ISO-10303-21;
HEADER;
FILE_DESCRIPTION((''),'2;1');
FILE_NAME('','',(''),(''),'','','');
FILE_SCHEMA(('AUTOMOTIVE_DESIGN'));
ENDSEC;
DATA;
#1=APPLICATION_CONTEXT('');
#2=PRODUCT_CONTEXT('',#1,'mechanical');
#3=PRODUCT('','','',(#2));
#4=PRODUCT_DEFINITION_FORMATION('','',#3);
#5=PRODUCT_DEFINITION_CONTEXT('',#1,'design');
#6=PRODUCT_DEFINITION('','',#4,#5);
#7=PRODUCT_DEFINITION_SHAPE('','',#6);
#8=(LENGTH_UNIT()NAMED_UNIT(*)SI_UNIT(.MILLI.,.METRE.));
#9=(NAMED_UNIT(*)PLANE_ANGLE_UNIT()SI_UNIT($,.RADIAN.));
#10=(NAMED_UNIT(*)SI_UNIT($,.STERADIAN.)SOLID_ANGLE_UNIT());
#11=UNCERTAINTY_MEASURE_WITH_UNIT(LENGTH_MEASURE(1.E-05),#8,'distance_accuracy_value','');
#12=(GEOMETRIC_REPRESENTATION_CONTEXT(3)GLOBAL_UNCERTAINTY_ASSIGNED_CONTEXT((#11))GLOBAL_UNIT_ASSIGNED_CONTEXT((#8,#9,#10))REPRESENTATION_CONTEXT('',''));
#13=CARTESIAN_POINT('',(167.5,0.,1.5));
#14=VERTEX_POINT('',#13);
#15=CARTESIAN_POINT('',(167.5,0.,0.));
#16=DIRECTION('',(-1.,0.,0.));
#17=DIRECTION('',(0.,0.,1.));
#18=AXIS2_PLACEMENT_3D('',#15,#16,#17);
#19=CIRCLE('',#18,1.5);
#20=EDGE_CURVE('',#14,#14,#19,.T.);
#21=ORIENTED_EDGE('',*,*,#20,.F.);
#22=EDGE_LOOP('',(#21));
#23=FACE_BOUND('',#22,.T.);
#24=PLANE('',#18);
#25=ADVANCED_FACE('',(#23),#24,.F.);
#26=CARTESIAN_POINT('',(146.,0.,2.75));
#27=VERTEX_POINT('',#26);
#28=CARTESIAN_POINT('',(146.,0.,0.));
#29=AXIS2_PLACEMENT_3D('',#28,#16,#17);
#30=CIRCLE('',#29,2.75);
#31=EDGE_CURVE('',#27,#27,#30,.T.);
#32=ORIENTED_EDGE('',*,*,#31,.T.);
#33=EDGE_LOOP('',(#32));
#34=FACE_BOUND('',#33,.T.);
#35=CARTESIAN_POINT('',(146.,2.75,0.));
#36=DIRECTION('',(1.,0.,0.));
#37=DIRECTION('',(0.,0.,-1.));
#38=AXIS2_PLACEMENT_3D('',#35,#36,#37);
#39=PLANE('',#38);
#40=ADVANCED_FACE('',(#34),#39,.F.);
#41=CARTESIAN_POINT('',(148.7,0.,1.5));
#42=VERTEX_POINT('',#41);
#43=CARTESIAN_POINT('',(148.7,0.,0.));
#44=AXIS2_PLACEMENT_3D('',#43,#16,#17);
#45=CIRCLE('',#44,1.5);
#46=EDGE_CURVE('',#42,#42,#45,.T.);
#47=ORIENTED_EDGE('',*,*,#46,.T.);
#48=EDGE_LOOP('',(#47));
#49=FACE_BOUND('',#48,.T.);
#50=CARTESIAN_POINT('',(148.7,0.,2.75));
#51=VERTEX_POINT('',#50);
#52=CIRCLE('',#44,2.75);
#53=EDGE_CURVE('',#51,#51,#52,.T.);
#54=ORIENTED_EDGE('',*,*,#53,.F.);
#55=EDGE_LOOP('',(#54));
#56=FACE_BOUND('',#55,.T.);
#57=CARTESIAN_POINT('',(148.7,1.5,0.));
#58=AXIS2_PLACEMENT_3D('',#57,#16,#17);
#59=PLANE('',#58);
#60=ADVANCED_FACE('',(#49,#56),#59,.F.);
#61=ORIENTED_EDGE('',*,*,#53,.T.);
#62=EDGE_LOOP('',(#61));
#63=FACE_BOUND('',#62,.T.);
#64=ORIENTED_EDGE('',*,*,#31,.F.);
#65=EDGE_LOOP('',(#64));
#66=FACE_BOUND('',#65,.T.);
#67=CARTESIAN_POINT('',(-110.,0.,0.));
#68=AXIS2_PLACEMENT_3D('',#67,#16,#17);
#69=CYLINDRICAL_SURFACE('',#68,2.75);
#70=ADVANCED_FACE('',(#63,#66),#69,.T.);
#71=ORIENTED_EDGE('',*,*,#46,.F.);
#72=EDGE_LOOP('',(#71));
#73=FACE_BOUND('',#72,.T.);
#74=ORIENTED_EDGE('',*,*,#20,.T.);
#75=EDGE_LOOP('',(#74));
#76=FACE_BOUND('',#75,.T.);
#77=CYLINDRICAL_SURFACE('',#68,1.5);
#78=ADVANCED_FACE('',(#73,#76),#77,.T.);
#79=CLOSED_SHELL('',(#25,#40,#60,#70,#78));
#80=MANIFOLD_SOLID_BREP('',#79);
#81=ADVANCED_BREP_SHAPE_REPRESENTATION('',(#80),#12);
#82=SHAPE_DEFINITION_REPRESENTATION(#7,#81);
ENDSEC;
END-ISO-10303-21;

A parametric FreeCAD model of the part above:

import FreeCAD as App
import Part
import Sketcher

doc = App.newDocument("Part")
params = doc.addObject("Spreadsheet::Sheet", "Params")
for row, (alias, value) in enumerate([
    ("sketch1_width", "21.5 mm"),
    ("sketch1_width2", "18.8 mm"),
    ("sketch1_height", "1.5 mm"),
    ("sketch1_height2", "1.25 mm"),
    ("revolution_angle", "360 deg"),
], start=1):
    params.set(f"A{row}", alias)
    params.set(f"B{row}", "=" + value)
    params.setAlias(f"B{row}", alias)

body = doc.addObject("PartDesign::Body", "Body")

# Sketch on XY plane
sketch1 = doc.addObject("Sketcher::SketchObject", "Sketch")
body.addObject(sketch1)
sketch1.AttachmentSupport = (doc.XY_Plane, [""])
sketch1.MapMode = "FlatFace"
sketch1.addGeometry([
    Part.LineSegment(App.Vector(146, 0, 0), App.Vector(167.5, 0, 0)),  # 0
    Part.LineSegment(App.Vector(167.5, 0, 0), App.Vector(167.5, 1.5, 0)),  # 1
    Part.LineSegment(App.Vector(167.5, 1.5, 0), App.Vector(148.7, 1.5, 0)),  # 2
    Part.LineSegment(App.Vector(148.7, 1.5, 0), App.Vector(148.7, 2.8, 0)),  # 3
    Part.LineSegment(App.Vector(148.7, 2.8, 0), App.Vector(146, 2.8, 0)),  # 4
    Part.LineSegment(App.Vector(146, 2.8, 0), App.Vector(146, 0, 0)),  # 5
], False)
sketch1.addConstraint([
    Sketcher.Constraint("Coincident", 0, 2, 1, 1),
    Sketcher.Constraint("Coincident", 1, 2, 2, 1),
    Sketcher.Constraint("Coincident", 2, 2, 3, 1),
    Sketcher.Constraint("Coincident", 3, 2, 4, 1),
    Sketcher.Constraint("Coincident", 4, 2, 5, 1),
    Sketcher.Constraint("Coincident", 5, 2, 0, 1),
    Sketcher.Constraint("Horizontal", 0),
    Sketcher.Constraint("Vertical", 1),
    Sketcher.Constraint("Horizontal", 2),
    Sketcher.Constraint("Vertical", 3),
    Sketcher.Constraint("Horizontal", 4),
    Sketcher.Constraint("Vertical", 5),
    Sketcher.Constraint("PointOnObject", 0, 2, -1),
    Sketcher.Constraint("DistanceX", 0, 1, 0, 2, 21.5),
    Sketcher.Constraint("DistanceX", 2, 2, 2, 1, 18.8),
    Sketcher.Constraint("DistanceY", 1, 1, 1, 2, 1.5),
    Sketcher.Constraint("DistanceX", -1, 1, 4, 2, 146.0),
    Sketcher.Constraint("DistanceY", 3, 1, 3, 2, 1.25),
])
sketch1.setExpression("Constraints[13]", "Params.sketch1_width")
sketch1.setExpression("Constraints[14]", "Params.sketch1_width2")
sketch1.setExpression("Constraints[15]", "Params.sketch1_height")
sketch1.setExpression("Constraints[17]", "Params.sketch1_height2")
revolution = doc.addObject("PartDesign::Revolution", "Revolution")
body.addObject(revolution)
revolution.Profile = sketch1
revolution.ReferenceAxis = (sketch1, ["H_Axis"])
revolution.setExpression("Angle", "Params.revolution_angle")

doc.recompute()
